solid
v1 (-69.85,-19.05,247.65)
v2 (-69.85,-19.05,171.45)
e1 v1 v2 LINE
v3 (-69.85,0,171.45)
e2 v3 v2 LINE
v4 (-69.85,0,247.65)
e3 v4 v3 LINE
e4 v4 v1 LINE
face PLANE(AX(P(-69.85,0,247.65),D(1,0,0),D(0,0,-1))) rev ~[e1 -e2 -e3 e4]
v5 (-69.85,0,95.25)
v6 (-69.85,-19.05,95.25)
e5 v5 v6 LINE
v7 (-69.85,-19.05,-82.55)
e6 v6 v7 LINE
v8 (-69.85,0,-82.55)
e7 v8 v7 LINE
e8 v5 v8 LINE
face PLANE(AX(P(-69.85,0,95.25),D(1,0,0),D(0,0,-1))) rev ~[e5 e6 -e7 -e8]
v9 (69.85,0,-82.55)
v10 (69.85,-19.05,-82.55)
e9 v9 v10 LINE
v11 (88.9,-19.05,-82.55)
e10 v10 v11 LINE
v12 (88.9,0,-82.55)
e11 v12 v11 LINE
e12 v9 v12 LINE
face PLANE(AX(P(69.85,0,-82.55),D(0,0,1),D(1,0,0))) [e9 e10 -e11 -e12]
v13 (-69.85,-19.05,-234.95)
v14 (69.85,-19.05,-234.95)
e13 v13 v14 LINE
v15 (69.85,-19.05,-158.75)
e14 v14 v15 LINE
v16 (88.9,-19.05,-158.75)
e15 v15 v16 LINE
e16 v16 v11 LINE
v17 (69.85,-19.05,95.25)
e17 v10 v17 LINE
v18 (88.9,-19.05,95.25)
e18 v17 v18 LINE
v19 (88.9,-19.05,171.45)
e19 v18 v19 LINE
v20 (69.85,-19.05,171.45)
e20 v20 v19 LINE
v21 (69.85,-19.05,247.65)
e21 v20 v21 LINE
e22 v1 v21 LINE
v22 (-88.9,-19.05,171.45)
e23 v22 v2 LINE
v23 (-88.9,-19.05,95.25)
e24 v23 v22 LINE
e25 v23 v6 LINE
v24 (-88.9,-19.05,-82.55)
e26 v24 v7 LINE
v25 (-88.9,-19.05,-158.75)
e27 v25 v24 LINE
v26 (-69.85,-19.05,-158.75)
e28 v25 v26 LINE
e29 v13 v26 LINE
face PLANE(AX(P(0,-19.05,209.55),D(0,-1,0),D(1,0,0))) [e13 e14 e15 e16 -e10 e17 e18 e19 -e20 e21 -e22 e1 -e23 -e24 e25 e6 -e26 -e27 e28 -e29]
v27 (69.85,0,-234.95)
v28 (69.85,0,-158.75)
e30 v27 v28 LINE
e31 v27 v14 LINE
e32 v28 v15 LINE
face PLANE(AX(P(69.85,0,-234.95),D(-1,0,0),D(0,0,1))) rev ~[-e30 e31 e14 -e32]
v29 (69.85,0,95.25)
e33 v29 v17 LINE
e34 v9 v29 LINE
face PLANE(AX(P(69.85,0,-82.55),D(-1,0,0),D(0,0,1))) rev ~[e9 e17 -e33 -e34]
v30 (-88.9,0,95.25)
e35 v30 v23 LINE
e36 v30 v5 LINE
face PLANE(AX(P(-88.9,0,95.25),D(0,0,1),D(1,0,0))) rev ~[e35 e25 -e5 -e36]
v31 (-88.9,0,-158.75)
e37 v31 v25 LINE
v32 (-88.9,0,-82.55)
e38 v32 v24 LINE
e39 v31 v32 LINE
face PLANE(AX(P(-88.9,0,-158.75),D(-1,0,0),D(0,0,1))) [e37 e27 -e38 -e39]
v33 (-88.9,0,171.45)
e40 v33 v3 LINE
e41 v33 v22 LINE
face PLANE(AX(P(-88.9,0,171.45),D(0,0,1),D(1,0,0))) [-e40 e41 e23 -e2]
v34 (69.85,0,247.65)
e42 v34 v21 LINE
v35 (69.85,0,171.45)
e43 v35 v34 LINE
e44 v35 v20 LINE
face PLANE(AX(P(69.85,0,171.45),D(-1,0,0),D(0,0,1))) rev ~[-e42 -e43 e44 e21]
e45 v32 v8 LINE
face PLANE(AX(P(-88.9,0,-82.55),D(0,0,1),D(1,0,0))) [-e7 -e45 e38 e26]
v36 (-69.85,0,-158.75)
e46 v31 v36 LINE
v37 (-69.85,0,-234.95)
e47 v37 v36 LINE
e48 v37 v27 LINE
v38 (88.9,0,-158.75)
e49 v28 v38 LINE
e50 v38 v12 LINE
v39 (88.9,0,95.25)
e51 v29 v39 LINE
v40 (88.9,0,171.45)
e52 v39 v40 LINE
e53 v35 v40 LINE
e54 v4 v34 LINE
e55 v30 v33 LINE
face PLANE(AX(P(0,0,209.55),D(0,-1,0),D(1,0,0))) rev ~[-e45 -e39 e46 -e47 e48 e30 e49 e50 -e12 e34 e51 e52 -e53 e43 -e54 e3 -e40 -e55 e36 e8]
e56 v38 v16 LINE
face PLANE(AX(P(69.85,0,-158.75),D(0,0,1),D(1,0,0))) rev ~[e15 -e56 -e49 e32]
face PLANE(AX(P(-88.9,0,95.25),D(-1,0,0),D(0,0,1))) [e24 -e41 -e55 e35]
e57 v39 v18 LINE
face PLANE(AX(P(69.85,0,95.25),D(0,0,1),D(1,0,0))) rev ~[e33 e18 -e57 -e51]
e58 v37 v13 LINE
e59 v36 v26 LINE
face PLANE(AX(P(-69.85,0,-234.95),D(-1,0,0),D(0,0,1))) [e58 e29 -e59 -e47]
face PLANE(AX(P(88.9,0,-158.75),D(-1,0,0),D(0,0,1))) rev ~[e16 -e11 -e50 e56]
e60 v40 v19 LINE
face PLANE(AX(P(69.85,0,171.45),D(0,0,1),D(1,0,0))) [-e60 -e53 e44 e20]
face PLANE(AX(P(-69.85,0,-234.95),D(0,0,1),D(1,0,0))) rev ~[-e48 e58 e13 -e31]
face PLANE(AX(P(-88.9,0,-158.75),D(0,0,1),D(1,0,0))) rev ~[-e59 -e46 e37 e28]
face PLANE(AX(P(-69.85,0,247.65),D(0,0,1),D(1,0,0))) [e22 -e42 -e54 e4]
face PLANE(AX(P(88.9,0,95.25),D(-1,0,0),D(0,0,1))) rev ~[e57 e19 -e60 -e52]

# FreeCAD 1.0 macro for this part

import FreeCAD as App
import Part
import Sketcher
from FreeCAD import Vector
Q = App.Units.Quantity

doc = App.newDocument("Part")
body = doc.addObject("PartDesign::Body", "Body")

# Sketch on XZ plane
sketch1 = doc.addObject("Sketcher::SketchObject", "Sketch")
body.addObject(sketch1)
sketch1.AttachmentSupport = (doc.XZ_Plane, [""])
sketch1.MapMode = "FlatFace"
sketch1.addGeometry(Part.LineSegment(Vector(-69.85, 247.65, 0), Vector(-69.85, 171.45, 0)), False)
sketch1.addGeometry(Part.LineSegment(Vector(-69.85, 171.45, 0), Vector(-88.9, 171.45, 0)), False)
sketch1.addGeometry(Part.LineSegment(Vector(-88.9, 171.45, 0), Vector(-88.9, 95.25, 0)), False)
sketch1.addGeometry(Part.LineSegment(Vector(-88.9, 95.25, 0), Vector(-69.85, 95.25, 0)), False)
sketch1.addGeometry(Part.LineSegment(Vector(-69.85, 95.25, 0), Vector(-69.85, -82.55, 0)), False)
sketch1.addGeometry(Part.LineSegment(Vector(-69.85, -82.55, 0), Vector(-88.9, -82.55, 0)), False)
sketch1.addGeometry(Part.LineSegment(Vector(-88.9, -82.55, 0), Vector(-88.9, -158.75, 0)), False)
sketch1.addGeometry(Part.LineSegment(Vector(-88.9, -158.75, 0), Vector(-69.85, -158.75, 0)), False)
sketch1.addGeometry(Part.LineSegment(Vector(-69.85, -158.75, 0), Vector(-69.85, -234.95, 0)), False)
sketch1.addGeometry(Part.LineSegment(Vector(-69.85, -234.95, 0), Vector(69.85, -234.95, 0)), False)
sketch1.addGeometry(Part.LineSegment(Vector(69.85, -234.95, 0), Vector(69.85, -158.75, 0)), False)
sketch1.addGeometry(Part.LineSegment(Vector(69.85, -158.75, 0), Vector(88.9, -158.75, 0)), False)
sketch1.addGeometry(Part.LineSegment(Vector(88.9, -158.75, 0), Vector(88.9, -82.55, 0)), False)
sketch1.addGeometry(Part.LineSegment(Vector(88.9, -82.55, 0), Vector(69.85, -82.55, 0)), False)
sketch1.addGeometry(Part.LineSegment(Vector(69.85, -82.55, 0), Vector(69.85, 95.25, 0)), False)
sketch1.addGeometry(Part.LineSegment(Vector(69.85, 95.25, 0), Vector(88.9, 95.25, 0)), False)
sketch1.addGeometry(Part.LineSegment(Vector(88.9, 95.25, 0), Vector(88.9, 171.45, 0)), False)
sketch1.addGeometry(Part.LineSegment(Vector(88.9, 171.45, 0), Vector(69.85, 171.45, 0)), False)
sketch1.addGeometry(Part.LineSegment(Vector(69.85, 171.45, 0), Vector(69.85, 247.65, 0)), False)
sketch1.addGeometry(Part.LineSegment(Vector(69.85, 247.65, 0), Vector(-69.85, 247.65, 0)), False)
sketch1.addConstraint(Sketcher.Constraint("Coincident", 0, 2, 1, 1))
sketch1.addConstraint(Sketcher.Constraint("Coincident", 1, 2, 2, 1))
sketch1.addConstraint(Sketcher.Constraint("Coincident", 2, 2, 3, 1))
sketch1.addConstraint(Sketcher.Constraint("Coincident", 3, 2, 4, 1))
sketch1.addConstraint(Sketcher.Constraint("Coincident", 4, 2, 5, 1))
sketch1.addConstraint(Sketcher.Constraint("Coincident", 5, 2, 6, 1))
sketch1.addConstraint(Sketcher.Constraint("Coincident", 6, 2, 7, 1))
sketch1.addConstraint(Sketcher.Constraint("Coincident", 7, 2, 8, 1))
sketch1.addConstraint(Sketcher.Constraint("Coincident", 8, 2, 9, 1))
sketch1.addConstraint(Sketcher.Constraint("Coincident", 9, 2, 10, 1))
sketch1.addConstraint(Sketcher.Constraint("Coincident", 10, 2, 11, 1))
sketch1.addConstraint(Sketcher.Constraint("Coincident", 11, 2, 12, 1))
sketch1.addConstraint(Sketcher.Constraint("Coincident", 12, 2, 13, 1))
sketch1.addConstraint(Sketcher.Constraint("Coincident", 13, 2, 14, 1))
sketch1.addConstraint(Sketcher.Constraint("Coincident", 14, 2, 15, 1))
sketch1.addConstraint(Sketcher.Constraint("Coincident", 15, 2, 16, 1))
sketch1.addConstraint(Sketcher.Constraint("Coincident", 16, 2, 17, 1))
sketch1.addConstraint(Sketcher.Constraint("Coincident", 17, 2, 18, 1))
sketch1.addConstraint(Sketcher.Constraint("Coincident", 18, 2, 19, 1))
sketch1.addConstraint(Sketcher.Constraint("Coincident", 19, 2, 0, 1))
sketch1.addConstraint(Sketcher.Constraint("Vertical", 0))
sketch1.addConstraint(Sketcher.Constraint("Horizontal", 1))
sketch1.addConstraint(Sketcher.Constraint("Vertical", 2))
sketch1.addConstraint(Sketcher.Constraint("Horizontal", 3))
sketch1.addConstraint(Sketcher.Constraint("Vertical", 4))
sketch1.addConstraint(Sketcher.Constraint("Horizontal", 5))
sketch1.addConstraint(Sketcher.Constraint("Vertical", 6))
sketch1.addConstraint(Sketcher.Constraint("Horizontal", 7))
sketch1.addConstraint(Sketcher.Constraint("Vertical", 8))
sketch1.addConstraint(Sketcher.Constraint("Horizontal", 9))
sketch1.addConstraint(Sketcher.Constraint("Vertical", 10))
sketch1.addConstraint(Sketcher.Constraint("Horizontal", 11))
sketch1.addConstraint(Sketcher.Constraint("Vertical", 12))
sketch1.addConstraint(Sketcher.Constraint("Horizontal", 13))
sketch1.addConstraint(Sketcher.Constraint("Vertical", 14))
sketch1.addConstraint(Sketcher.Constraint("Horizontal", 15))
sketch1.addConstraint(Sketcher.Constraint("Vertical", 16))
sketch1.addConstraint(Sketcher.Constraint("Horizontal", 17))
sketch1.addConstraint(Sketcher.Constraint("Vertical", 18))
sketch1.addConstraint(Sketcher.Constraint("Horizontal", 19))
sketch1.addConstraint(Sketcher.Constraint("Symmetric", 7, 2, 10, 2, -2))
sketch1.addConstraint(Sketcher.Constraint("Symmetric", 5, 2, 12, 2, -2))
sketch1.addConstraint(Sketcher.Constraint("Symmetric", 3, 2, 14, 2, -2))
sketch1.addConstraint(Sketcher.Constraint("Symmetric", 1, 2, 16, 2, -2))
sketch1.addConstraint(Sketcher.Constraint("Vertical", 0, 2, 3, 2))
sketch1.addConstraint(Sketcher.Constraint("Vertical", 2, 2, 5, 2))
sketch1.addConstraint(Sketcher.Constraint("Vertical", 4, 2, 7, 2))
sketch1.addConstraint(Sketcher.Constraint("Vertical", 14, 2, 17, 2))
sketch1.addConstraint(Sketcher.Constraint("Equal", 0, 2))
sketch1.addConstraint(Sketcher.Constraint("Equal", 2, 6))
sketch1.addConstraint(Sketcher.Constraint("Equal", 6, 8))
sketch1.addConstraint(Sketcher.Constraint("DistanceY", 0, 2, 0, 1, Q("3 in")))
sketch1.addConstraint(Sketcher.Constraint("DistanceY", 4, 2, 4, 1, Q("7 in")))
sketch1.addConstraint(Sketcher.Constraint("DistanceX", 9, 1, 9, 2, Q("5.5 in")))
sketch1.addConstraint(Sketcher.Constraint("DistanceX", 2, 2, 15, 2, Q("7 in")))
sketch1.addConstraint(Sketcher.Constraint("DistanceY", -1, 1, 0, 2, Q("6.75 in")))
pad1 = doc.addObject("PartDesign::Pad", "Pad")
body.addObject(pad1)
pad1.Profile = sketch1
pad1.Length = Q("0.75 in")

doc.recompute()
